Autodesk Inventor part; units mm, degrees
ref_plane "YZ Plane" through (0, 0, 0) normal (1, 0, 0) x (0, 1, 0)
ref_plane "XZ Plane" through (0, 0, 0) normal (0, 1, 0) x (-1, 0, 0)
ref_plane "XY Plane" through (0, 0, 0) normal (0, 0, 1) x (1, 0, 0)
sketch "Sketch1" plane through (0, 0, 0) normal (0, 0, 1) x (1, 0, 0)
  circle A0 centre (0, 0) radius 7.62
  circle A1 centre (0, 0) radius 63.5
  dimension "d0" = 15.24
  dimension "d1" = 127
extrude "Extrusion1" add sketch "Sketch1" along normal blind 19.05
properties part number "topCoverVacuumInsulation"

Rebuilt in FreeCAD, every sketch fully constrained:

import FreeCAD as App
import Part
import Sketcher
from FreeCAD import Vector
Q = App.Units.Quantity

doc = App.newDocument("Part")
body = doc.addObject("PartDesign::Body", "Body")

sketch1 = body.newObject("Sketcher::SketchObject", "Sketch")
sketch1.AttachmentSupport = (doc.getObject("XY_Plane"), [""])
sketch1.MapMode = "FlatFace"
sketch1.addGeometry([
    Part.Circle(Vector(0, 0, 0), Vector(0, 0, 1), 64),
    Part.Circle(Vector(0, 0, 0), Vector(0, 0, 1), 8),
], False)
sketch1.addConstraint([
    Sketcher.Constraint("Coincident", 0, 3, -1, 1),
    Sketcher.Constraint("Coincident", 1, 3, -1, 1),
    Sketcher.Constraint("Diameter", 0, Q("5 in")),
    Sketcher.Constraint("Diameter", 1, Q("0.6 in")),
])
pad1 = body.newObject("PartDesign::Pad", "Pad")
pad1.Profile = sketch1
pad1.Length = Q("0.75 in")

doc.recompute()
